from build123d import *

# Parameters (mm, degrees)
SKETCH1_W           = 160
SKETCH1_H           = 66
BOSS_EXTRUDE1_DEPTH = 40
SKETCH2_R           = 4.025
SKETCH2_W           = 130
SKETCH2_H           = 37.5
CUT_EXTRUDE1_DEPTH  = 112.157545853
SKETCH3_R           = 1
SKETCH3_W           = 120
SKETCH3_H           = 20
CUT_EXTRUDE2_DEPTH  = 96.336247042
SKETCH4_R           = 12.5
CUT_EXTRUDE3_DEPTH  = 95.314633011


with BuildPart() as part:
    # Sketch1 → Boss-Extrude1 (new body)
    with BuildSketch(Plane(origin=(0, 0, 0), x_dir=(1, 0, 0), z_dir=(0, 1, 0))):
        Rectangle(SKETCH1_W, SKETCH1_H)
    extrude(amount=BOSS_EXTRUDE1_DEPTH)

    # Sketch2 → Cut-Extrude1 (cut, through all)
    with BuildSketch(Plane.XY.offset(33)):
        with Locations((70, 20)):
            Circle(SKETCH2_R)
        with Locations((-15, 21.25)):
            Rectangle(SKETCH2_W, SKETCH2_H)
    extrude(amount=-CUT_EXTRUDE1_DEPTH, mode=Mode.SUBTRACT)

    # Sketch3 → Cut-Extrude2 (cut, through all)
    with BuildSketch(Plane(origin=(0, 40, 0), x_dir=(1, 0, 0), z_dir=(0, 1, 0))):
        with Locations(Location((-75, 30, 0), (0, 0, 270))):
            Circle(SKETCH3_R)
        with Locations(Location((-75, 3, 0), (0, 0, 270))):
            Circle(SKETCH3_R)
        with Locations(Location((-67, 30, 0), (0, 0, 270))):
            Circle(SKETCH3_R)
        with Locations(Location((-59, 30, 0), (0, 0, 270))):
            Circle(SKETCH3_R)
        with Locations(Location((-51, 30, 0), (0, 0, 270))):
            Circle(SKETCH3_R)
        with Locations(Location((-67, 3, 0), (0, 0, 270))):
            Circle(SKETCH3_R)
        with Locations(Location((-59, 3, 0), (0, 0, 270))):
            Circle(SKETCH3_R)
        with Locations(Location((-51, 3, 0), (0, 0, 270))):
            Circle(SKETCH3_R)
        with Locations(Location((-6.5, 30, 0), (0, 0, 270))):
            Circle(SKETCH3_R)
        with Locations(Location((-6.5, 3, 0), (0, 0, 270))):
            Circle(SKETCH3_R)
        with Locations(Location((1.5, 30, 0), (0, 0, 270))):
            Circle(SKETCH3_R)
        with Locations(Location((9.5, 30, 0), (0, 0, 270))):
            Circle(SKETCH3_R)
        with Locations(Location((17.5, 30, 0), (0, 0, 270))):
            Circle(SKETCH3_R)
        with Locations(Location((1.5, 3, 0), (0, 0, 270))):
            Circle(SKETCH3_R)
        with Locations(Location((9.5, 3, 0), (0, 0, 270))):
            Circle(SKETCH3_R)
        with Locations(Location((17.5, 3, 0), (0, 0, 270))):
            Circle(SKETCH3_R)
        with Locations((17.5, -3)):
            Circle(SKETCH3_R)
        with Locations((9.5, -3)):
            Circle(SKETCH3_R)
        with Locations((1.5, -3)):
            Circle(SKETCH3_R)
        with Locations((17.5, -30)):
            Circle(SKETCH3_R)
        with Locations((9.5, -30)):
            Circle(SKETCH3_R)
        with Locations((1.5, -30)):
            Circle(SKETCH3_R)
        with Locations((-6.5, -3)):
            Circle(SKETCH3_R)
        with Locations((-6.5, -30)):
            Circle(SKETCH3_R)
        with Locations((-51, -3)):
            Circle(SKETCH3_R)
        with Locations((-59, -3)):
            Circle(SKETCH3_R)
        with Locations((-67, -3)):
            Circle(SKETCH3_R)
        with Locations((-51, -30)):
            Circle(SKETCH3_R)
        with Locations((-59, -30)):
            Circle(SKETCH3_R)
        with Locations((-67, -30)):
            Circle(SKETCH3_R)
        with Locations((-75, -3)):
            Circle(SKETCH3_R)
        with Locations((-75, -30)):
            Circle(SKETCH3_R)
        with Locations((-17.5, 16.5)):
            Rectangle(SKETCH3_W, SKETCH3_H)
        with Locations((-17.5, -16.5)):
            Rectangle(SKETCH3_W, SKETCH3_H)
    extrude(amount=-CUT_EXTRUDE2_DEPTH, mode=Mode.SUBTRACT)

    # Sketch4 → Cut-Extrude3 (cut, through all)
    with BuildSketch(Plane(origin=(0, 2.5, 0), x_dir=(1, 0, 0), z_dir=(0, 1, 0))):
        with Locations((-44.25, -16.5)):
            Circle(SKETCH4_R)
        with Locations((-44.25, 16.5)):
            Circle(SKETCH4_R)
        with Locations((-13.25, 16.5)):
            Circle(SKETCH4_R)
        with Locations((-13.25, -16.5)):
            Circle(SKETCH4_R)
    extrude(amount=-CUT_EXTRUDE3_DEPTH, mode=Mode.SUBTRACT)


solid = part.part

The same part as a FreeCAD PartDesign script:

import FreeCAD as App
import Part
import Sketcher

V = App.Vector


def add_polygon(sketch, points):
    """Adds a closed chain of lines whose ends are joined by coincident constraints."""
    first, n = sketch.GeometryCount, len(points)
    for a, b in zip(points, points[1:] + points[:1]):
        sketch.addGeometry(Part.LineSegment(App.Vector(*a, 0), App.Vector(*b, 0)), False)
    for i in range(n):
        sketch.addConstraint(Sketcher.Constraint("Coincident", first + i, 2, first + (i + 1) % n, 1))

doc = App.newDocument("Part")
body = doc.addObject("PartDesign::Body", "Body")

# Sketch on XZ plane
sketch1 = body.newObject("Sketcher::SketchObject", "Sketch")
sketch1.AttachmentSupport = (doc.getObject("XZ_Plane"), [""])
sketch1.MapMode = "FlatFace"
add_polygon(sketch1, [(-80, -33), (-80, 33), (80, 33), (80, -33)])  # lines 0-3
sketch1.addConstraint(Sketcher.Constraint("Vertical", 0))
sketch1.addConstraint(Sketcher.Constraint("Horizontal", 1))
sketch1.addConstraint(Sketcher.Constraint("Vertical", 2))
sketch1.addConstraint(Sketcher.Constraint("Horizontal", 3))
sketch1.addConstraint(Sketcher.Constraint("Symmetric", 0, 2, 2, 2, -1, 1))
sketch1.addConstraint(Sketcher.Constraint("DistanceX", 1, 1, 1, 2, 160.0))
sketch1.addConstraint(Sketcher.Constraint("DistanceY", 0, 1, 0, 2, 66.0))
pad1 = body.newObject("PartDesign::Pad", "Pad")
pad1.Profile = sketch1
pad1.Length = 40
pad1.Reversed = True

# Sketch on XY plane
sketch2 = body.newObject("Sketcher::SketchObject", "Sketch001")
sketch2.AttachmentSupport = (doc.getObject("XY_Plane"), [""])
sketch2.MapMode = "FlatFace"
sketch2.AttachmentOffset = App.Placement(V(0, 0, 33), App.Rotation())
sketch2.addGeometry(Part.Circle(V(70, 20, 0), V(0, 0, 1), 4), False)  # 0
add_polygon(sketch2, [(-80, 40), (-80, 2.5), (50, 2.5), (50, 40)])  # lines 1-4
sketch2.addConstraint(Sketcher.Constraint("Vertical", 1))
sketch2.addConstraint(Sketcher.Constraint("Horizontal", 2))
sketch2.addConstraint(Sketcher.Constraint("Vertical", 3))
sketch2.addConstraint(Sketcher.Constraint("Horizontal", 4))
sketch2.addConstraint(Sketcher.Constraint("Diameter", 0, 8.05))
sketch2.addConstraint(Sketcher.Constraint("DistanceX", 2, 1, 2, 2, 130.0))
sketch2.addConstraint(Sketcher.Constraint("DistanceY", 1, 2, 1, 1, 37.5))
sketch2.addConstraint(Sketcher.Constraint("DistanceX", -1, 1, 0, 3, 70.0))
sketch2.addConstraint(Sketcher.Constraint("DistanceY", -1, 1, 0, 3, 20.0))
sketch2.addConstraint(Sketcher.Constraint("DistanceX", 1, 2, -1, 1, 80.0))
sketch2.addConstraint(Sketcher.Constraint("DistanceY", -1, 1, 3, 2, 40.0))
pocket1 = body.newObject("PartDesign::Pocket", "Pocket")
pocket1.Profile = sketch2
pocket1.Type = "ThroughAll"

# Sketch on XZ plane
sketch3 = body.newObject("Sketcher::SketchObject", "Sketch002")
sketch3.AttachmentSupport = (doc.getObject("XZ_Plane"), [""])
sketch3.MapMode = "FlatFace"
sketch3.AttachmentOffset = App.Placement(V(0, 0, -40), App.Rotation())
sketch3.addGeometry(Part.Circle(V(-75, -30, 0), V(0, 0, 1), 1), False)  # 0
sketch3.addGeometry(Part.Circle(V(-75, -3, 0), V(0, 0, 1), 1), False)  # 1
sketch3.addGeometry(Part.Circle(V(-67, -30, 0), V(0, 0, 1), 1), False)  # 2
sketch3.addGeometry(Part.Circle(V(-59, -30, 0), V(0, 0, 1), 1), False)  # 3
sketch3.addGeometry(Part.Circle(V(-51, -30, 0), V(0, 0, 1), 1), False)  # 4
sketch3.addGeometry(Part.Circle(V(-67, -3, 0), V(0, 0, 1), 1), False)  # 5
sketch3.addGeometry(Part.Circle(V(-59, -3, 0), V(0, 0, 1), 1), False)  # 6
sketch3.addGeometry(Part.Circle(V(-51, -3, 0), V(0, 0, 1), 1), False)  # 7
sketch3.addGeometry(Part.Circle(V(-6.5, -30, 0), V(0, 0, 1), 1), False)  # 8
sketch3.addGeometry(Part.Circle(V(-6.5, -3, 0), V(0, 0, 1), 1), False)  # 9
sketch3.addGeometry(Part.Circle(V(1.5, -30, 0), V(0, 0, 1), 1), False)  # 10
sketch3.addGeometry(Part.Circle(V(9.5, -30, 0), V(0, 0, 1), 1), False)  # 11
sketch3.addGeometry(Part.Circle(V(17.5, -30, 0), V(0, 0, 1), 1), False)  # 12
sketch3.addGeometry(Part.Circle(V(1.5, -3, 0), V(0, 0, 1), 1), False)  # 13
sketch3.addGeometry(Part.Circle(V(9.5, -3, 0), V(0, 0, 1), 1), False)  # 14
sketch3.addGeometry(Part.Circle(V(17.5, -3, 0), V(0, 0, 1), 1), False)  # 15
sketch3.addGeometry(Part.Circle(V(17.5, 3, 0), V(0, 0, 1), 1), False)  # 16
sketch3.addGeometry(Part.Circle(V(9.5, 3, 0), V(0, 0, 1), 1), False)  # 17
sketch3.addGeometry(Part.Circle(V(1.5, 3, 0), V(0, 0, 1), 1), False)  # 18
sketch3.addGeometry(Part.Circle(V(17.5, 30, 0), V(0, 0, 1), 1), False)  # 19
sketch3.addGeometry(Part.Circle(V(9.5, 30, 0), V(0, 0, 1), 1), False)  # 20
sketch3.addGeometry(Part.Circle(V(1.5, 30, 0), V(0, 0, 1), 1), False)  # 21
sketch3.addGeometry(Part.Circle(V(-6.5, 3, 0), V(0, 0, 1), 1), False)  # 22
sketch3.addGeometry(Part.Circle(V(-6.5, 30, 0), V(0, 0, 1), 1), False)  # 23
sketch3.addGeometry(Part.Circle(V(-51, 3, 0), V(0, 0, 1), 1), False)  # 24
sketch3.addGeometry(Part.Circle(V(-59, 3, 0), V(0, 0, 1), 1), False)  # 25
sketch3.addGeometry(Part.Circle(V(-67, 3, 0), V(0, 0, 1), 1), False)  # 26
sketch3.addGeometry(Part.Circle(V(-51, 30, 0), V(0, 0, 1), 1), False)  # 27
sketch3.addGeometry(Part.Circle(V(-59, 30, 0), V(0, 0, 1), 1), False)  # 28
sketch3.addGeometry(Part.Circle(V(-67, 30, 0), V(0, 0, 1), 1), False)  # 29
sketch3.addGeometry(Part.Circle(V(-75, 3, 0), V(0, 0, 1), 1), False)  # 30
sketch3.addGeometry(Part.Circle(V(-75, 30, 0), V(0, 0, 1), 1), False)  # 31
add_polygon(sketch3, [(-77.5, -26.5), (-77.5, -6.5), (42.5, -6.5), (42.5, -26.5)])  # lines 32-35
add_polygon(sketch3, [(-77.5, 6.5), (-77.5, 26.5), (42.5, 26.5), (42.5, 6.5)])  # lines 36-39
sketch3.addConstraint(Sketcher.Constraint("Vertical", 32))
sketch3.addConstraint(Sketcher.Constraint("Horizontal", 33))
sketch3.addConstraint(Sketcher.Constraint("Vertical", 34))
sketch3.addConstraint(Sketcher.Constraint("Horizontal", 35))
sketch3.addConstraint(Sketcher.Constraint("Vertical", 36))
sketch3.addConstraint(Sketcher.Constraint("Horizontal", 37))
sketch3.addConstraint(Sketcher.Constraint("Vertical", 38))
sketch3.addConstraint(Sketcher.Constraint("Horizontal", 39))
sketch3.addConstraint(Sketcher.Constraint("Equal", 0, 1))
sketch3.addConstraint(Sketcher.Constraint("Equal", 1, 2))
sketch3.addConstraint(Sketcher.Constraint("Equal", 2, 3))
sketch3.addConstraint(Sketcher.Constraint("Equal", 3, 4))
sketch3.addConstraint(Sketcher.Constraint("Equal", 4, 5))
sketch3.addConstraint(Sketcher.Constraint("Equal", 5, 6))
sketch3.addConstraint(Sketcher.Constraint("Equal", 6, 7))
sketch3.addConstraint(Sketcher.Constraint("Equal", 7, 8))
sketch3.addConstraint(Sketcher.Constraint("Equal", 8, 9))
sketch3.addConstraint(Sketcher.Constraint("Equal", 9, 10))
sketch3.addConstraint(Sketcher.Constraint("Equal", 10, 11))
sketch3.addConstraint(Sketcher.Constraint("Equal", 11, 12))
sketch3.addConstraint(Sketcher.Constraint("Equal", 12, 13))
sketch3.addConstraint(Sketcher.Constraint("Equal", 13, 14))
sketch3.addConstraint(Sketcher.Constraint("Equal", 14, 15))
sketch3.addConstraint(Sketcher.Constraint("Equal", 15, 16))
sketch3.addConstraint(Sketcher.Constraint("Equal", 16, 17))
sketch3.addConstraint(Sketcher.Constraint("Equal", 17, 18))
sketch3.addConstraint(Sketcher.Constraint("Equal", 18, 19))
sketch3.addConstraint(Sketcher.Constraint("Equal", 19, 20))
sketch3.addConstraint(Sketcher.Constraint("Equal", 20, 21))
sketch3.addConstraint(Sketcher.Constraint("Equal", 21, 22))
sketch3.addConstraint(Sketcher.Constraint("Equal", 22, 23))
sketch3.addConstraint(Sketcher.Constraint("Equal", 23, 24))
sketch3.addConstraint(Sketcher.Constraint("Equal", 24, 25))
sketch3.addConstraint(Sketcher.Constraint("Equal", 25, 26))
sketch3.addConstraint(Sketcher.Constraint("Equal", 26, 27))
sketch3.addConstraint(Sketcher.Constraint("Equal", 27, 28))
sketch3.addConstraint(Sketcher.Constraint("Equal", 28, 29))
sketch3.addConstraint(Sketcher.Constraint("Equal", 29, 30))
sketch3.addConstraint(Sketcher.Constraint("Equal", 30, 31))
sketch3.addConstraint(Sketcher.Constraint("Symmetric", 15, 3, 16, 3, -1))
sketch3.addConstraint(Sketcher.Constraint("Symmetric", 14, 3, 17, 3, -1))
sketch3.addConstraint(Sketcher.Constraint("Symmetric", 13, 3, 18, 3, -1))
sketch3.addConstraint(Sketcher.Constraint("Symmetric", 12, 3, 19, 3, -1))
sketch3.addConstraint(Sketcher.Constraint("Symmetric", 11, 3, 20, 3, -1))
sketch3.addConstraint(Sketcher.Constraint("Symmetric", 10, 3, 21, 3, -1))
sketch3.addConstraint(Sketcher.Constraint("Symmetric", 9, 3, 22, 3, -1))
sketch3.addConstraint(Sketcher.Constraint("Symmetric", 8, 3, 23, 3, -1))
sketch3.addConstraint(Sketcher.Constraint("Symmetric", 7, 3, 24, 3, -1))
sketch3.addConstraint(Sketcher.Constraint("Symmetric", 6, 3, 25, 3, -1))
sketch3.addConstraint(Sketcher.Constraint("Symmetric", 5, 3, 26, 3, -1))
sketch3.addConstraint(Sketcher.Constraint("Symmetric", 4, 3, 27, 3, -1))
sketch3.addConstraint(Sketcher.Constraint("Symmetric", 3, 3, 28, 3, -1))
sketch3.addConstraint(Sketcher.Constraint("Symmetric", 2, 3, 29, 3, -1))
sketch3.addConstraint(Sketcher.Constraint("Symmetric", 1, 3, 30, 3, -1))
sketch3.addConstraint(Sketcher.Constraint("Symmetric", 0, 3, 31, 3, -1))
sketch3.addConstraint(Sketcher.Constraint("Symmetric", 35, 2, 36, 2, -1))
sketch3.addConstraint(Sketcher.Constraint("Symmetric", 33, 2, 38, 2, -1))
sketch3.addConstraint(Sketcher.Constraint("Horizontal", 0, 3, 2, 3))
sketch3.addConstraint(Sketcher.Constraint("Horizontal", 2, 3, 3, 3))
sketch3.addConstraint(Sketcher.Constraint("Horizontal", 3, 3, 4, 3))
sketch3.addConstraint(Sketcher.Constraint("Horizontal", 1, 3, 5, 3))
sketch3.addConstraint(Sketcher.Constraint("Horizontal", 5, 3, 6, 3))
sketch3.addConstraint(Sketcher.Constraint("Horizontal", 6, 3, 7, 3))
sketch3.addConstraint(Sketcher.Constraint("Horizontal", 4, 3, 8, 3))
sketch3.addConstraint(Sketcher.Constraint("Horizontal", 7, 3, 9, 3))
sketch3.addConstraint(Sketcher.Constraint("Horizontal", 8, 3, 10, 3))
sketch3.addConstraint(Sketcher.Constraint("Horizontal", 10, 3, 11, 3))
sketch3.addConstraint(Sketcher.Constraint("Horizontal", 11, 3, 12, 3))
sketch3.addConstraint(Sketcher.Constraint("Horizontal", 9, 3, 13, 3))
sketch3.addConstraint(Sketcher.Constraint("Horizontal", 13, 3, 14, 3))
sketch3.addConstraint(Sketcher.Constraint("Horizontal", 14, 3, 15, 3))
sketch3.addConstraint(Sketcher.Constraint("Vertical", 0, 3, 1, 3))
sketch3.addConstraint(Sketcher.Constraint("Vertical", 2, 3, 5, 3))
sketch3.addConstraint(Sketcher.Constraint("Vertical", 3, 3, 6, 3))
sketch3.addConstraint(Sketcher.Constraint("Vertical", 4, 3, 7, 3))
sketch3.addConstraint(Sketcher.Constraint("Vertical", 8, 3, 9, 3))
sketch3.addConstraint(Sketcher.Constraint("Vertical", 10, 3, 13, 3))
sketch3.addConstraint(Sketcher.Constraint("Vertical", 11, 3, 14, 3))
sketch3.addConstraint(Sketcher.Constraint("Vertical", 12, 3, 15, 3))
sketch3.addConstraint(Sketcher.Constraint("Diameter", 0, 2.0))
sketch3.addConstraint(Sketcher.Constraint("DistanceX", 33, 1, 33, 2, 120.0))
sketch3.addConstraint(Sketcher.Constraint("DistanceY", 32, 1, 32, 2, 20.0))
sketch3.addConstraint(Sketcher.Constraint("DistanceX", 0, 3, -1, 1, 75.0))
sketch3.addConstraint(Sketcher.Constraint("DistanceY", 0, 3, -1, 1, 30.0))
sketch3.addConstraint(Sketcher.Constraint("DistanceY", 1, 3, -1, 1, 3.0))
sketch3.addConstraint(Sketcher.Constraint("DistanceX", 2, 3, -1, 1, 67.0))
sketch3.addConstraint(Sketcher.Constraint("DistanceX", 3, 3, -1, 1, 59.0))
sketch3.addConstraint(Sketcher.Constraint("DistanceX", 4, 3, -1, 1, 51.0))
sketch3.addConstraint(Sketcher.Constraint("DistanceX", 8, 3, 10, 3, 8.0))
sketch3.addConstraint(Sketcher.Constraint("DistanceX", 10, 3, 11, 3, 8.0))
sketch3.addConstraint(Sketcher.Constraint("DistanceX", 11, 3, 12, 3, 8.0))
sketch3.addConstraint(Sketcher.Constraint("DistanceX", 15, 3, 33, 2, 25.0))
sketch3.addConstraint(Sketcher.Constraint("DistanceY", 33, 2, 37, 2, 33.0))
sketch3.addConstraint(Sketcher.Constraint("DistanceX", 8, 3, -1, 1, 6.5))
pocket2 = body.newObject("PartDesign::Pocket", "Pocket001")
pocket2.Profile = sketch3
pocket2.Type = "ThroughAll"
pocket2.Reversed = True

# Sketch on XZ plane
sketch4 = body.newObject("Sketcher::SketchObject", "Sketch003")
sketch4.AttachmentSupport = (doc.getObject("XZ_Plane"), [""])
sketch4.MapMode = "FlatFace"
sketch4.AttachmentOffset = App.Placement(V(0, 0, -2.5), App.Rotation())
sketch4.addGeometry(Part.Circle(V(-44, 16, 0), V(0, 0, 1), 12), False)
sketch4.addGeometry(Part.Circle(V(-44, -16, 0), V(0, 0, 1), 12), False)
sketch4.addGeometry(Part.Circle(V(-13, -16, 0), V(0, 0, 1), 12), False)
sketch4.addGeometry(Part.Circle(V(-13, 16, 0), V(0, 0, 1), 12), False)
sketch4.addConstraint(Sketcher.Constraint("Equal", 0, 1))
sketch4.addConstraint(Sketcher.Constraint("Equal", 1, 2))
sketch4.addConstraint(Sketcher.Constraint("Equal", 2, 3))
sketch4.addConstraint(Sketcher.Constraint("Symmetric", 0, 3, 1, 3, -1))
sketch4.addConstraint(Sketcher.Constraint("Symmetric", 2, 3, 3, 3, -1))
sketch4.addConstraint(Sketcher.Constraint("Horizontal", 1, 3, 2, 3))
sketch4.addConstraint(Sketcher.Constraint("Diameter", 0, 25.0))
sketch4.addConstraint(Sketcher.Constraint("DistanceY", 1, 3, 0, 3, 33.0))
sketch4.addConstraint(Sketcher.Constraint("DistanceX", 1, 3, 2, 3, 31.0))
sketch4.addConstraint(Sketcher.Constraint("DistanceX", 0, 3, -1, 1, 44.25))
pocket3 = body.newObject("PartDesign::Pocket", "Pocket002")
pocket3.Profile = sketch4
pocket3.Type = "ThroughAll"
pocket3.Reversed = True

doc.recompute()
